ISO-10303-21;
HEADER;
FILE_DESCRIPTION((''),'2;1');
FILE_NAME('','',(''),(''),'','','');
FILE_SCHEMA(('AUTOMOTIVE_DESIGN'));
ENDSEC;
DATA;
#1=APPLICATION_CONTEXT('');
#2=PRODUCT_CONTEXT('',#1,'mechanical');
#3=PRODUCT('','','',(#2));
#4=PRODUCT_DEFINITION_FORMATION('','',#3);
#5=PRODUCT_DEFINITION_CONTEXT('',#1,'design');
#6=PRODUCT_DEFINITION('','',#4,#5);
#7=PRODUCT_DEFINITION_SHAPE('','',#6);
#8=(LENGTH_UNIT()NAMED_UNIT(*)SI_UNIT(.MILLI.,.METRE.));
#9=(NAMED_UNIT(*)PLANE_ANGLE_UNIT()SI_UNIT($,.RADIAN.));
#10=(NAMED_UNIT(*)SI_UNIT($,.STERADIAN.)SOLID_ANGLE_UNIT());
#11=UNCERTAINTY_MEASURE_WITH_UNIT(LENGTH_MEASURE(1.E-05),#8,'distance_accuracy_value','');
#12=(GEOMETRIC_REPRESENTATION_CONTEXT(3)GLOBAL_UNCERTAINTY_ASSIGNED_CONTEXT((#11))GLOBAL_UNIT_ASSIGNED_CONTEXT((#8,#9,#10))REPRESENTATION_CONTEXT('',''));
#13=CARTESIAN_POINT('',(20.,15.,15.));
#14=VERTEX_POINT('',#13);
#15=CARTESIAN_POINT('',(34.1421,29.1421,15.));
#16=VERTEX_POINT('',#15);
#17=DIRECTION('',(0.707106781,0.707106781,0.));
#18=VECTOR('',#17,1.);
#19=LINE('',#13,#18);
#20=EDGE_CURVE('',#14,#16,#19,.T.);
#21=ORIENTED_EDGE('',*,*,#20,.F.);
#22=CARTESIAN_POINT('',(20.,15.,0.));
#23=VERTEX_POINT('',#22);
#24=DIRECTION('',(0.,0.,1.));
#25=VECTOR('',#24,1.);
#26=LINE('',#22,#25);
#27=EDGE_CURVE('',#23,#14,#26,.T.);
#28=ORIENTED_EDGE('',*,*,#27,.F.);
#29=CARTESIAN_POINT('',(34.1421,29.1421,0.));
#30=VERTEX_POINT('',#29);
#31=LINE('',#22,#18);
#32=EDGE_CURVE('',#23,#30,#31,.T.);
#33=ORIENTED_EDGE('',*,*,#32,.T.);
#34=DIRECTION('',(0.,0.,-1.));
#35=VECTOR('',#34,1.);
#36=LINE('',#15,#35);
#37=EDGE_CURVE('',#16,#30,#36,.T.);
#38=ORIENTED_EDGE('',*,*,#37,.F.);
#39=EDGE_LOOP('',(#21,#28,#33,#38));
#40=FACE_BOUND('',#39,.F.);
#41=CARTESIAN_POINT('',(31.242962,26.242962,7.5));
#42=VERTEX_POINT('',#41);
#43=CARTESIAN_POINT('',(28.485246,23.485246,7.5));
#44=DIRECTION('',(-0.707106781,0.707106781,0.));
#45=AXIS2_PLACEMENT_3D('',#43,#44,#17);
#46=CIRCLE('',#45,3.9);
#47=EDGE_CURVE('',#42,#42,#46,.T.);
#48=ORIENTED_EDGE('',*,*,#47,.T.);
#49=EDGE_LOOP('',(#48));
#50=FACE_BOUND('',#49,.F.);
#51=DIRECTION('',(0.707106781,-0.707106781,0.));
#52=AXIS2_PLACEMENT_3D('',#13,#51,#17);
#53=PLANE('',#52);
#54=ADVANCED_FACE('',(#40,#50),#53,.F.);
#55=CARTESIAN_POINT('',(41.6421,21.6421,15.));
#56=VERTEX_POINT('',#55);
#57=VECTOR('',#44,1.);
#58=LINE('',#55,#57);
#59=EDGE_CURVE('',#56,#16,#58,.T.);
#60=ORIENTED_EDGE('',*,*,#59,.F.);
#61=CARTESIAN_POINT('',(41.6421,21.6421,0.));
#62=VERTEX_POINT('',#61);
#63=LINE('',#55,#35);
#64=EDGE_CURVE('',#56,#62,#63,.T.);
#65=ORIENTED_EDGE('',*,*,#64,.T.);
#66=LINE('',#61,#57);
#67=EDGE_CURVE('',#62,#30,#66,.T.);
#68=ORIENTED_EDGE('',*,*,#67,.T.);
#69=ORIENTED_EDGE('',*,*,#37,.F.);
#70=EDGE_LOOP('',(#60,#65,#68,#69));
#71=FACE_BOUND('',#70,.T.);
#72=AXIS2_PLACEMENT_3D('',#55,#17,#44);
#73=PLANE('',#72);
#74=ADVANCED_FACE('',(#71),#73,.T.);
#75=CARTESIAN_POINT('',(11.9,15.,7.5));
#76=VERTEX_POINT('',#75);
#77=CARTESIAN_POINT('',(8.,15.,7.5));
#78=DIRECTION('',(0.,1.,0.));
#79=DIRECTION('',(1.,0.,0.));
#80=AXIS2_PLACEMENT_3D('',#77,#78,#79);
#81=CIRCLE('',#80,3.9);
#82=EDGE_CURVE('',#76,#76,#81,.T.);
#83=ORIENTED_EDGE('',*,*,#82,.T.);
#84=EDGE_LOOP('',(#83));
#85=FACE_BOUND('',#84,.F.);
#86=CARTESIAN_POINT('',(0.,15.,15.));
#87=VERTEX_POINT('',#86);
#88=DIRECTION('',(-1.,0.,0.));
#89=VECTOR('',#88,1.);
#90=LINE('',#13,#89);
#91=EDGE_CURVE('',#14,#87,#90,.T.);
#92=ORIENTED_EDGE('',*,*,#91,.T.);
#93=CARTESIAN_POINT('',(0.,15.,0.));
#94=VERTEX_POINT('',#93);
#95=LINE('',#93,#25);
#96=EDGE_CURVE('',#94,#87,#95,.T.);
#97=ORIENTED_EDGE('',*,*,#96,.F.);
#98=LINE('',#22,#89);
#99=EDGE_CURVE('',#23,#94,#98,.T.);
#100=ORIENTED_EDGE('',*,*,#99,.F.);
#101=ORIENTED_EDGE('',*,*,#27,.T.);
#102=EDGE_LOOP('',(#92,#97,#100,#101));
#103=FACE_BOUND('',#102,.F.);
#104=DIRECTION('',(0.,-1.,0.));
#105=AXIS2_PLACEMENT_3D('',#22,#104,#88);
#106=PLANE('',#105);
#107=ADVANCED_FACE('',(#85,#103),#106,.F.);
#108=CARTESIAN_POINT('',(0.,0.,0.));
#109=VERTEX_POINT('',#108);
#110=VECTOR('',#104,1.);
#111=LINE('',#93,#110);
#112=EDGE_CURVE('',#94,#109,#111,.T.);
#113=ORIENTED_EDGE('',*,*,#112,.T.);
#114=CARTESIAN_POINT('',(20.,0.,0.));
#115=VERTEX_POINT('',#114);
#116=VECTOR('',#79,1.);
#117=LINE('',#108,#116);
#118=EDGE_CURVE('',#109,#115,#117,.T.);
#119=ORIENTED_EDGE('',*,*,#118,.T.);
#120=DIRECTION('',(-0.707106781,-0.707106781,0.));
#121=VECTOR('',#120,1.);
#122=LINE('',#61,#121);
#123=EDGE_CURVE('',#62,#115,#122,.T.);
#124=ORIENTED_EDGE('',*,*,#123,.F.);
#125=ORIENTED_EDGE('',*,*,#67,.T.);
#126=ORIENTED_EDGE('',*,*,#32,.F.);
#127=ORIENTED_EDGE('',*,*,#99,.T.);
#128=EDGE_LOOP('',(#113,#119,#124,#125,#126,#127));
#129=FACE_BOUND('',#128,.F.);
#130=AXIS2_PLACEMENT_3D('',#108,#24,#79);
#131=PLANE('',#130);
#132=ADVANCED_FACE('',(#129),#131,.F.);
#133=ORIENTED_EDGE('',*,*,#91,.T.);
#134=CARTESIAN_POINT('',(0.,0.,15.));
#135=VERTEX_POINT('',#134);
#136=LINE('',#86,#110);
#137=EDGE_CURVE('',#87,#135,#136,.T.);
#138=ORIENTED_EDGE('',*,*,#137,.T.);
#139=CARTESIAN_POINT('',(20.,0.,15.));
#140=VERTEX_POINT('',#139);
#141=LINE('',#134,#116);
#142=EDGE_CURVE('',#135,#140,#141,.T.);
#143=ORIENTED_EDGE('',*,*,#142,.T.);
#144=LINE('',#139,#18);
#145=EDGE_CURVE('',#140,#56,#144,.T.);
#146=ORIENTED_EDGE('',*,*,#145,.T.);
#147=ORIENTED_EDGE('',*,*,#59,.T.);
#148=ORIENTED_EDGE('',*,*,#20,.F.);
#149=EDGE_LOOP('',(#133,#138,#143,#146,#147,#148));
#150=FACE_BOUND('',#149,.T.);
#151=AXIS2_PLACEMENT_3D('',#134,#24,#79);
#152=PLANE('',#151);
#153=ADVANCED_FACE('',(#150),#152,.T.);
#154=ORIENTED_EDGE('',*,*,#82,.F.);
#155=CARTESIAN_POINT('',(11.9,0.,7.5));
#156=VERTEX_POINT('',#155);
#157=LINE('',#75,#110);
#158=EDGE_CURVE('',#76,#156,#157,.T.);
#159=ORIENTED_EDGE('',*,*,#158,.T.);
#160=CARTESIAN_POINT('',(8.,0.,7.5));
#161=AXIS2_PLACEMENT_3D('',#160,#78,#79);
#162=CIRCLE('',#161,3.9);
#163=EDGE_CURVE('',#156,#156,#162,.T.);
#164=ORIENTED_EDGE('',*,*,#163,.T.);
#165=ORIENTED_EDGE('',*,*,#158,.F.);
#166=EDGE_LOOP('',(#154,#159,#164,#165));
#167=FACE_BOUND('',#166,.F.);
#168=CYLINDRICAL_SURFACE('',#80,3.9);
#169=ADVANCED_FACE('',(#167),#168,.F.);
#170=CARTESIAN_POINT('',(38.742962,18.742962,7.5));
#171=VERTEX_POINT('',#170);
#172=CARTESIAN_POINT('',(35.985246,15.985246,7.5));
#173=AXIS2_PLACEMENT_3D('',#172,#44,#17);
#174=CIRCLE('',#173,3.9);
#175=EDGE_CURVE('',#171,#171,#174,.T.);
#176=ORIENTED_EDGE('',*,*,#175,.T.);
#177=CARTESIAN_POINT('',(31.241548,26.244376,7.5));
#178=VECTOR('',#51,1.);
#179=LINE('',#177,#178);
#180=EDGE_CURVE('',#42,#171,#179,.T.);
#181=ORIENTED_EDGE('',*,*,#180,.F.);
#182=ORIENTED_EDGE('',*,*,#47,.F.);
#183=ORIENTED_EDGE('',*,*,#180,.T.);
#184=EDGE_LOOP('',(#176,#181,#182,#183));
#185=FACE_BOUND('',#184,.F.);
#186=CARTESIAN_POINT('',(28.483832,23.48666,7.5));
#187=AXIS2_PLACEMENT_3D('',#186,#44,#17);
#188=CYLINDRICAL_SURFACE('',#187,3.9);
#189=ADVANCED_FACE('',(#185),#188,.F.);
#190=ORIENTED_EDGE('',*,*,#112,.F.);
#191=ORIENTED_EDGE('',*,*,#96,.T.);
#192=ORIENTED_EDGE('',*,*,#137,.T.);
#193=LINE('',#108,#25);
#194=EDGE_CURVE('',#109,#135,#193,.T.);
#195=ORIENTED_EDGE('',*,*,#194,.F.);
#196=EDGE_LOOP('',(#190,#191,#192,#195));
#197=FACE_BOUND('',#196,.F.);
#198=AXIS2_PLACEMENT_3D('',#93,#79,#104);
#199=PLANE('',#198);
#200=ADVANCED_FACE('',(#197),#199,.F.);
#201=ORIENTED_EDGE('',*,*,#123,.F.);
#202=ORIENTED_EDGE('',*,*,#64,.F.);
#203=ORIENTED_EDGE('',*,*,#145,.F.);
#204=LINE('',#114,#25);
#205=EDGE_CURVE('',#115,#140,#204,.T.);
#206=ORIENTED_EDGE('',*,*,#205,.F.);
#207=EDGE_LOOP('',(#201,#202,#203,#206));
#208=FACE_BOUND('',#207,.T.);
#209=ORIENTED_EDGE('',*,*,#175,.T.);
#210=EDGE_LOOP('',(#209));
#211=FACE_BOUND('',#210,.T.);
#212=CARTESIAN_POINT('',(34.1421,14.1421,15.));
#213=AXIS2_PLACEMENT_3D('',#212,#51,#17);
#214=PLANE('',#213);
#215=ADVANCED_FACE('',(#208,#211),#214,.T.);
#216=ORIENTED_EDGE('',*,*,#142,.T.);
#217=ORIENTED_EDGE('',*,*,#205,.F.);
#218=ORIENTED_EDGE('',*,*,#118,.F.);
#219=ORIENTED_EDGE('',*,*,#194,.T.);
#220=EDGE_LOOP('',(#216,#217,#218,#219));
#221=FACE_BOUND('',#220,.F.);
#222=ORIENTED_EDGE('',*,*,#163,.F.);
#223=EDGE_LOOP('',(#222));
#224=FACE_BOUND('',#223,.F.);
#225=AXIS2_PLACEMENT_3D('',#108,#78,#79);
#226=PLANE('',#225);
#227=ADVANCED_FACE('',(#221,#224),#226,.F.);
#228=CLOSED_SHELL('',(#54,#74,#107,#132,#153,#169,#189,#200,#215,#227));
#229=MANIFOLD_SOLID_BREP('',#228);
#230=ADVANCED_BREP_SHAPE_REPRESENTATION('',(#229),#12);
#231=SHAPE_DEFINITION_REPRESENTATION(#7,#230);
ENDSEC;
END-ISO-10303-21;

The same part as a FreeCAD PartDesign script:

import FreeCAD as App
import Part
import Sketcher
from FreeCAD import Vector
Q = App.Units.Quantity

doc = App.newDocument("Part")
body = doc.addObject("PartDesign::Body", "Body")

# Sketch on XY plane
sketch1 = body.newObject("Sketcher::SketchObject", "Sketch")
sketch1.AttachmentSupport = (doc.getObject("XY_Plane"), [""])
sketch1.MapMode = "FlatFace"
sketch1.addGeometry([
    Part.LineSegment(Vector(0, 15, 0), Vector(0, 0, 0)),
    Part.LineSegment(Vector(0, 0, 0), Vector(20, 0, 0)),
    Part.LineSegment(Vector(20, 0, 0), Vector(20, 15, 0)),
    Part.LineSegment(Vector(20, 15, 0), Vector(0, 15, 0)),
], False)
sketch1.addConstraint([
    Sketcher.Constraint("Coincident", 0, 2, 1, 1),
    Sketcher.Constraint("Coincident", 1, 2, 2, 1),
    Sketcher.Constraint("Coincident", 2, 2, 3, 1),
    Sketcher.Constraint("Coincident", 3, 2, 0, 1),
    Sketcher.Constraint("Vertical", 0),
    Sketcher.Constraint("Horizontal", 1),
    Sketcher.Constraint("Vertical", 2),
    Sketcher.Constraint("Horizontal", 3),
    Sketcher.Constraint("Coincident", 0, 2, -1, 1),
    Sketcher.Constraint("DistanceX", 1, 1, 1, 2, 20.0),
    Sketcher.Constraint("DistanceY", 0, 2, 0, 1, 15.0),
])
pad1 = body.newObject("PartDesign::Pad", "Pad")
pad1.Profile = sketch1
pad1.Length = 15

# Sketch on XZ plane
sketch2 = body.newObject("Sketcher::SketchObject", "Sketch001")
sketch2.AttachmentSupport = (doc.getObject("XZ_Plane"), [""])
sketch2.MapMode = "FlatFace"
sketch2.AttachmentOffset = App.Placement(Vector(0, 0, -15), App.Rotation())
sketch2.addGeometry(Part.Circle(Vector(8, 7.5, 0), Vector(0, 0, 1), 3.9), False)
sketch2.addConstraint([
    Sketcher.Constraint("Diameter", 0, 7.8),
    Sketcher.Constraint("DistanceX", -1, 1, 0, 3, 8.0),
    Sketcher.Constraint("DistanceY", -1, 1, 0, 3, 7.5),
])
pocket1 = body.newObject("PartDesign::Pocket", "Pocket")
pocket1.Profile = sketch2
pocket1.Length = 15
pocket1.Reversed = True

# Sketch on XY plane
sketch3 = body.newObject("Sketcher::SketchObject", "Sketch002")
sketch3.AttachmentSupport = (doc.getObject("XY_Plane"), [""])
sketch3.MapMode = "FlatFace"
sketch3.AttachmentOffset = App.Placement(Vector(0, 0, 15), App.Rotation())
sketch3.addGeometry([
    Part.LineSegment(Vector(20, 15, 0), Vector(20, 0, 0)),
    Part.LineSegment(Vector(20, 0, 0), Vector(42, 22, 0)),
    Part.LineSegment(Vector(42, 22, 0), Vector(34, 29, 0)),
    Part.LineSegment(Vector(34, 29, 0), Vector(20, 15, 0)),
], False)
sketch3.addConstraint([
    Sketcher.Constraint("Coincident", 0, 2, 1, 1),
    Sketcher.Constraint("Coincident", 1, 2, 2, 1),
    Sketcher.Constraint("Coincident", 2, 2, 3, 1),
    Sketcher.Constraint("Coincident", 3, 2, 0, 1),
    Sketcher.Constraint("Vertical", 0),
    Sketcher.Constraint("PointOnObject", 0, 2, -1),
    Sketcher.Constraint("Perpendicular", 1, 2),
    Sketcher.Constraint("Perpendicular", 2, 3),
    Sketcher.Constraint("Angle", 1, Q("45 deg")),
    Sketcher.Constraint("Distance", 3, 20.0),
    Sketcher.Constraint("DistanceX", -1, 1, 0, 2, 20.0),
    Sketcher.Constraint("DistanceY", 0, 2, 0, 1, 15.0),
])
pad2 = body.newObject("PartDesign::Pad", "Pad001")
pad2.Profile = sketch3
pad2.Length = 15
pad2.Reversed = True

# Sketch on an angled plane
sketch4 = body.newObject("Sketcher::SketchObject", "Sketch003")
sketch4.Placement = App.Placement(Vector(34.1421, 29.1421, 15), App.Rotation(Vector(0.707106781, 0.707106781, 0), Vector(0, 0, -0.999999999), Vector(-0.707106781, 0.707106781, 0), "ZXY"))
sketch4.addGeometry(Part.Circle(Vector(-8, 7.5, 0), Vector(0, 0, 1), 3.9), False)
sketch4.addConstraint([
    Sketcher.Constraint("Diameter", 0, 7.8),
    Sketcher.Constraint("DistanceX", 0, 3, -1, 1, 8.0),
    Sketcher.Constraint("DistanceY", -1, 1, 0, 3, 7.5),
])
pocket2 = body.newObject("PartDesign::Pocket", "Pocket001")
pocket2.Profile = sketch4
pocket2.Length = 15

doc.recompute()
